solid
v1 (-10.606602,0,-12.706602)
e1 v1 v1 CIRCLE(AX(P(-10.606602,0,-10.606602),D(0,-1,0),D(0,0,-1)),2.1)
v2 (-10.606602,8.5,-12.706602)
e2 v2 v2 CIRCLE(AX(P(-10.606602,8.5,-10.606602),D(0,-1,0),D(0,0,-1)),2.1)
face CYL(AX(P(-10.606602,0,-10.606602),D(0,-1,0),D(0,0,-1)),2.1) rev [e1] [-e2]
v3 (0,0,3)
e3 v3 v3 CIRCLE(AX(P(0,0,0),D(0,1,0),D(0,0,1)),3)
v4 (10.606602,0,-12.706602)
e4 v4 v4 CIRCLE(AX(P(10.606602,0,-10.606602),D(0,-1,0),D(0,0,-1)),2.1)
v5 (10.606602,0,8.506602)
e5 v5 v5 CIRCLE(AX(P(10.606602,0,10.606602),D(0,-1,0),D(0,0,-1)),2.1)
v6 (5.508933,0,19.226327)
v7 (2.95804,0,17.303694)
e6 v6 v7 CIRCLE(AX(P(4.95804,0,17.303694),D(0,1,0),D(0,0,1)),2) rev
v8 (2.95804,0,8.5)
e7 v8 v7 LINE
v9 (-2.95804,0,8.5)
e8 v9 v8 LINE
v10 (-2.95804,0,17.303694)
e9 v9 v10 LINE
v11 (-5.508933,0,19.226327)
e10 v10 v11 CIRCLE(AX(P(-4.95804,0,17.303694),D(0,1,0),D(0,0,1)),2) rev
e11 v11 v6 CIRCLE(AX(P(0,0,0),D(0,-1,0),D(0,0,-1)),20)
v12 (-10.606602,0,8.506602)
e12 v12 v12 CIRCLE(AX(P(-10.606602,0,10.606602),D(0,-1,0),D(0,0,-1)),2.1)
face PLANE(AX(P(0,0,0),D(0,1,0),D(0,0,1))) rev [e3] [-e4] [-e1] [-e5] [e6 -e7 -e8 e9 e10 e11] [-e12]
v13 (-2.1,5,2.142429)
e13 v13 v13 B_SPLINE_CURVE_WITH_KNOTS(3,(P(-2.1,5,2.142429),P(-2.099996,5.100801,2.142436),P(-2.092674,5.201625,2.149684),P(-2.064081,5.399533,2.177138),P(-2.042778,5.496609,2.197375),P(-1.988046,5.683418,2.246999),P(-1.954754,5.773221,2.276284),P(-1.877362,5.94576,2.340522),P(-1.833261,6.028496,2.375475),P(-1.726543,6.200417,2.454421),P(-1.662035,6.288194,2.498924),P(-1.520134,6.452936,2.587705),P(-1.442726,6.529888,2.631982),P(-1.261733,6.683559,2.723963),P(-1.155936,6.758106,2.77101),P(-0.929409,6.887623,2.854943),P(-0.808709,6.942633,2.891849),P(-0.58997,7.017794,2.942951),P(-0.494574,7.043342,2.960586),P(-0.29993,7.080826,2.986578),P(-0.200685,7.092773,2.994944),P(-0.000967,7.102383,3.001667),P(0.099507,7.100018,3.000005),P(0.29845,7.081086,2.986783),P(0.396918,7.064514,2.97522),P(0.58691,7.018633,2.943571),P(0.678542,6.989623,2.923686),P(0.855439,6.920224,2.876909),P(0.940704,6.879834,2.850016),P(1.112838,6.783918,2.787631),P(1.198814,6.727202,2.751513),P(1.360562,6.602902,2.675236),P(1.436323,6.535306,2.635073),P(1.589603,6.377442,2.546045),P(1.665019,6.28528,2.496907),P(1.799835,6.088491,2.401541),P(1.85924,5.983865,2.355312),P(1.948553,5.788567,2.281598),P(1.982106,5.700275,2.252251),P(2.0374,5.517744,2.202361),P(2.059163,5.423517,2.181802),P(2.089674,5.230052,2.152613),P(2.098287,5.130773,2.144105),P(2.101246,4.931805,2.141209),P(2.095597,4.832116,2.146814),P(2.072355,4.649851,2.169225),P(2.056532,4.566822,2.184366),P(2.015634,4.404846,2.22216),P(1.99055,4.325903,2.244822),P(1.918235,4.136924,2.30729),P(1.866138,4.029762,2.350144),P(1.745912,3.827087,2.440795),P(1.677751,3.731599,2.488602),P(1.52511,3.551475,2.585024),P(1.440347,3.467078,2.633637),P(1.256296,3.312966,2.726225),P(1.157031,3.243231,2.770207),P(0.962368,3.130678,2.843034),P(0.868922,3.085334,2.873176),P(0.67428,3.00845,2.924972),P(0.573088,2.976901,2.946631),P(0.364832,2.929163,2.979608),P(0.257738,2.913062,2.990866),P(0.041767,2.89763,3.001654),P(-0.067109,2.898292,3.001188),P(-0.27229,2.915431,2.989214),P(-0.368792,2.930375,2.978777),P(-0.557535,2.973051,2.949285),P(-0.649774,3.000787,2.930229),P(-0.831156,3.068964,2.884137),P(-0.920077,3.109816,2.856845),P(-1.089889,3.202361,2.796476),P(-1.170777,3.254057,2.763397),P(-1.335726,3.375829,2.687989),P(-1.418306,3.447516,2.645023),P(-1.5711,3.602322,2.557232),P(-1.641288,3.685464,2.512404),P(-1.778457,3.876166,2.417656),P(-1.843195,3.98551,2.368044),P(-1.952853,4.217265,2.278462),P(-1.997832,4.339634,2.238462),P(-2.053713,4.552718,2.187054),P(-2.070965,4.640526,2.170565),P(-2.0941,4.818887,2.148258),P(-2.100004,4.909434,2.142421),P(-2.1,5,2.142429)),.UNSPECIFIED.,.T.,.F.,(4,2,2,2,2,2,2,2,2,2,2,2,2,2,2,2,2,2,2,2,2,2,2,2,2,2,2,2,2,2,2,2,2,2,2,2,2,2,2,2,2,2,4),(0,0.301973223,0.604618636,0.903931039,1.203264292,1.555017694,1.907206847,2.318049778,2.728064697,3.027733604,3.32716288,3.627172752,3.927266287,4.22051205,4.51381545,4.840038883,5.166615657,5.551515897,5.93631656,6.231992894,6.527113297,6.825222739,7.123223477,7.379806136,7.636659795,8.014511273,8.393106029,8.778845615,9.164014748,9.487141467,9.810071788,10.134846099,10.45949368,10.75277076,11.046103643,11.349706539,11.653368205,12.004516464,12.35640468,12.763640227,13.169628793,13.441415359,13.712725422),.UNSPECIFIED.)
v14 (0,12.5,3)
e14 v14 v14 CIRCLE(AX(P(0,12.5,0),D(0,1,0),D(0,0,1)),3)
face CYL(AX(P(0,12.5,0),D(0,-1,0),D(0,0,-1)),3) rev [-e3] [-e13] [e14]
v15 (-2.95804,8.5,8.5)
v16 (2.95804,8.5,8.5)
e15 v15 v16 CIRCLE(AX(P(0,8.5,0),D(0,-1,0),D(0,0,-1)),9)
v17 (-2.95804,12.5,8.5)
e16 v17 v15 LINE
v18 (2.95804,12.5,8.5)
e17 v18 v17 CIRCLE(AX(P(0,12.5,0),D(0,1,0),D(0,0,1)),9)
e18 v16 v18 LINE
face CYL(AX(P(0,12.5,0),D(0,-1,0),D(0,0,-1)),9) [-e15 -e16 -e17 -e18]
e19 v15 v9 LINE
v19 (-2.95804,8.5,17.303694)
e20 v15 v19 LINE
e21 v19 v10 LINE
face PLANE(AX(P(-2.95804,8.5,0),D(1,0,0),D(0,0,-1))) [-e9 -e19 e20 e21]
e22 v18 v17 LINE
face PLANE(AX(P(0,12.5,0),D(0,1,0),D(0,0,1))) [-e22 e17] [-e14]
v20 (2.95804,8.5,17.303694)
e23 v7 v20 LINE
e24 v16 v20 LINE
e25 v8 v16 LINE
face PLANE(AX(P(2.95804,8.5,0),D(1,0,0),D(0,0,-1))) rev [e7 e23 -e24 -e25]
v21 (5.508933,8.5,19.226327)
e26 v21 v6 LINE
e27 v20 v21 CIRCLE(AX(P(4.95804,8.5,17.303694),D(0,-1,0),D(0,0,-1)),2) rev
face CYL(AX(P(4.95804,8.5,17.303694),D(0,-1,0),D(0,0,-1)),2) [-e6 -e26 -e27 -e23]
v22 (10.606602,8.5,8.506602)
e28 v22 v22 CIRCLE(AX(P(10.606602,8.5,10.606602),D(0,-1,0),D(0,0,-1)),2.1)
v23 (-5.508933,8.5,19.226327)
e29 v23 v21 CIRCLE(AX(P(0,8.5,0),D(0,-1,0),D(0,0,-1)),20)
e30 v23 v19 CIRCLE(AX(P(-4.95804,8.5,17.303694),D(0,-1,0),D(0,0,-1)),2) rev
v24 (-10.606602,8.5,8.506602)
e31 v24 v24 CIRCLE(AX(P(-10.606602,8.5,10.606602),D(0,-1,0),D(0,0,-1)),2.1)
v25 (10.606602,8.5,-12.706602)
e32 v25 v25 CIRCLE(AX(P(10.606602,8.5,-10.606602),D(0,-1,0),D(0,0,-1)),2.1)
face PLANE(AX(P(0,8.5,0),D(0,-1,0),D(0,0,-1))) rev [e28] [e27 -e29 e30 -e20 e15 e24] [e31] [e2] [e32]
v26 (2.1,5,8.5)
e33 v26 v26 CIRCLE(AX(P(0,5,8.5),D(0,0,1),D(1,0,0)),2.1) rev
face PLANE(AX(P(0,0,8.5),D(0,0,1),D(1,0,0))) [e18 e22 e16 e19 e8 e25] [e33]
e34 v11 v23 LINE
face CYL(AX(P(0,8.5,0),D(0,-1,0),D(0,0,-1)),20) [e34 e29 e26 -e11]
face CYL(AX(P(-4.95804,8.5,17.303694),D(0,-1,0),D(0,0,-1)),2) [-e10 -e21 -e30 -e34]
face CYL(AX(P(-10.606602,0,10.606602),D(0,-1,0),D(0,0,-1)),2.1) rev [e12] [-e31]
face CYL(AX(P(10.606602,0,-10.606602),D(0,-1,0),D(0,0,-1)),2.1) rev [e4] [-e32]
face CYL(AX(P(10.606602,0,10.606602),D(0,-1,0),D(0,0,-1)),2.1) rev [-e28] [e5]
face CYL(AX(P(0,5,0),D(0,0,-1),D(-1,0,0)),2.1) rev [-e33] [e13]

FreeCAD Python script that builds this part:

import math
import FreeCAD as App
import Part
import Sketcher
Q = App.Units.Quantity


def edges_at(feature, points):
    """Names of the edges that pass closest to the given points."""
    edges = feature.Shape.Edges
    near = lambda p: min(range(len(edges)), key=lambda i: edges[i].distToShape(Part.Vertex(*p))[0])
    return sorted({f"Edge{near(p) + 1}" for p in points})

doc = App.newDocument("Part")
body = doc.addObject("PartDesign::Body", "Body")

# Sketch on XZ plane
sketch1 = body.newObject("Sketcher::SketchObject", "Sketch")
sketch1.AttachmentSupport = (doc.getObject("XZ_Plane"), [""])
sketch1.MapMode = "FlatFace"
sketch1.addGeometry(Part.Circle(App.Vector(0, 0, 0), App.Vector(0, 0, 1), 9), False)
sketch1.addGeometry(Part.Circle(App.Vector(0, 0, 0), App.Vector(0, 0, 1), 3), False)
sketch1.addConstraint(Sketcher.Constraint("Coincident", 0, 3, -1, 1))
sketch1.addConstraint(Sketcher.Constraint("Coincident", 1, 3, -1, 1))
sketch1.addConstraint(Sketcher.Constraint("Diameter", 0, Q("18 mm")))
sketch1.addConstraint(Sketcher.Constraint("Diameter", 1, Q("6 mm")))
pad1 = body.newObject("PartDesign::Pad", "Pad")
pad1.Profile = sketch1
pad1.Length = 12.5
pad1.Reversed = True

# Sketch on YZ plane
sketch2 = body.newObject("Sketcher::SketchObject", "Sketch001")
sketch2.AttachmentSupport = (doc.getObject("YZ_Plane"), [""])
sketch2.MapMode = "FlatFace"
sketch2.addGeometry(Part.LineSegment(App.Vector(5, 9, 0), App.Vector(5, 0, 0)), False)
sketch2.addGeometry(Part.LineSegment(App.Vector(5, 0, 0), App.Vector(7.1, 0, 0)), False)
sketch2.addGeometry(Part.LineSegment(App.Vector(7.1, 0, 0), App.Vector(7.1, 9, 0)), False)
sketch2.addGeometry(Part.LineSegment(App.Vector(7.1, 9, 0), App.Vector(5, 9, 0)), False)
sketch2.addGeometry(Part.LineSegment(App.Vector(5, 0, 0), App.Vector(5, 9, 0)), True)  # axis
sketch2.addConstraint(Sketcher.Constraint("Coincident", 0, 2, 1, 1))
sketch2.addConstraint(Sketcher.Constraint("Coincident", 1, 2, 2, 1))
sketch2.addConstraint(Sketcher.Constraint("Coincident", 2, 2, 3, 1))
sketch2.addConstraint(Sketcher.Constraint("Coincident", 3, 2, 0, 1))
sketch2.addConstraint(Sketcher.Constraint("Vertical", 0))
sketch2.addConstraint(Sketcher.Constraint("Horizontal", 1))
sketch2.addConstraint(Sketcher.Constraint("Vertical", 2))
sketch2.addConstraint(Sketcher.Constraint("Horizontal", 3))
sketch2.addConstraint(Sketcher.Constraint("Vertical", 4))
sketch2.addConstraint(Sketcher.Constraint("Coincident", 4, 1, 0, 2))
sketch2.addConstraint(Sketcher.Constraint("PointOnObject", 0, 2, -1))
sketch2.addConstraint(Sketcher.Constraint("Horizontal", 2, 2, 4, 2))
sketch2.addConstraint(Sketcher.Constraint("DistanceY", 0, 2, 0, 1, Q("9 mm")))
sketch2.addConstraint(Sketcher.Constraint("DistanceX", 1, 1, 1, 2, Q("2.1 mm")))
sketch2.addConstraint(Sketcher.Constraint("DistanceX", -1, 1, 0, 2, Q("5 mm")))
groove = body.newObject("PartDesign::Groove", "Groove")
groove.Profile = sketch2
groove.ReferenceAxis = (sketch2, ["Axis0"])
groove.Angle = 360

# Sketch on XY plane
sketch3 = body.newObject("Sketcher::SketchObject", "Sketch002")
sketch3.AttachmentSupport = (doc.getObject("XY_Plane"), [""])
sketch3.MapMode = "FlatFace"
sketch3.AttachmentOffset = App.Placement(App.Vector(0, 0, 9), App.Rotation())
sketch3.addGeometry(Part.LineSegment(App.Vector(-9, 12, 0), App.Vector(-9, 0, 0)), False)
sketch3.addGeometry(Part.LineSegment(App.Vector(-9, 0, 0), App.Vector(9, 0, 0)), False)
sketch3.addGeometry(Part.LineSegment(App.Vector(9, 0, 0), App.Vector(9, 12, 0)), False)
sketch3.addGeometry(Part.LineSegment(App.Vector(9, 12, 0), App.Vector(-9, 12, 0)), False)
sketch3.addConstraint(Sketcher.Constraint("Coincident", 0, 2, 1, 1))
sketch3.addConstraint(Sketcher.Constraint("Coincident", 1, 2, 2, 1))
sketch3.addConstraint(Sketcher.Constraint("Coincident", 2, 2, 3, 1))
sketch3.addConstraint(Sketcher.Constraint("Coincident", 3, 2, 0, 1))
sketch3.addConstraint(Sketcher.Constraint("Vertical", 0))
sketch3.addConstraint(Sketcher.Constraint("Horizontal", 1))
sketch3.addConstraint(Sketcher.Constraint("Vertical", 2))
sketch3.addConstraint(Sketcher.Constraint("Horizontal", 3))
sketch3.addConstraint(Sketcher.Constraint("Symmetric", 0, 2, 1, 2, -1, 1))
sketch3.addConstraint(Sketcher.Constraint("DistanceX", 1, 1, 1, 2, Q("18 mm")))
sketch3.addConstraint(Sketcher.Constraint("DistanceY", 0, 2, 0, 1, Q("12.5 mm")))
pocket1 = body.newObject("PartDesign::Pocket", "Pocket")
pocket1.Profile = sketch3
pocket1.Length = 0.5

# Sketch on XZ plane
sketch4 = body.newObject("Sketcher::SketchObject", "Sketch003")
sketch4.AttachmentSupport = (doc.getObject("XZ_Plane"), [""])
sketch4.MapMode = "FlatFace"
sketch4.addGeometry(Part.LineSegment(App.Vector(-3, 8, 0), App.Vector(-3, 20, 0)), False)
sketch4.addGeometry(Part.ArcOfCircle(Part.Circle(App.Vector(0, 0, 0), App.Vector(0, 0, 1), 20), math.radians(99), math.radians(441)), False)
sketch4.addGeometry(Part.LineSegment(App.Vector(3, 20, 0), App.Vector(3, 8, 0)), False)
sketch4.addGeometry(Part.ArcOfCircle(Part.Circle(App.Vector(0, 0, 0), App.Vector(0, 0, 1), 9), math.radians(109), math.radians(431)), False)
sketch4.addConstraint(Sketcher.Constraint("Coincident", 0, 2, 1, 1))
sketch4.addConstraint(Sketcher.Constraint("Coincident", 1, 2, 2, 1))
sketch4.addConstraint(Sketcher.Constraint("Coincident", 2, 2, 3, 2))
sketch4.addConstraint(Sketcher.Constraint("Coincident", 3, 1, 0, 1))
sketch4.addConstraint(Sketcher.Constraint("Vertical", 0))
sketch4.addConstraint(Sketcher.Constraint("Vertical", 2))
sketch4.addConstraint(Sketcher.Constraint("Coincident", 1, 3, -1, 1))
sketch4.addConstraint(Sketcher.Constraint("Coincident", 3, 3, -1, 1))
sketch4.addConstraint(Sketcher.Constraint("Horizontal", 0, 2, 1, 2))
sketch4.addConstraint(Sketcher.Constraint("Radius", 1, Q("20 mm")))
sketch4.addConstraint(Sketcher.Constraint("Radius", 3, Q("9 mm")))
sketch4.addConstraint(Sketcher.Constraint("DistanceY", -1, 1, 2, 2, Q("8.5 mm")))
pad2 = body.newObject("PartDesign::Pad", "Pad001")
pad2.Profile = sketch4
pad2.Length = 8.5
pad2.Reversed = True
doc.recompute()

fillet = body.newObject("PartDesign::Fillet", "Fillet")
fillet.Base = (pad2, edges_at(pad2, [(-2.958, 4.25, 19.78), (2.958, 4.25, 19.78)]))
fillet.Radius = 2

# Sketch on XZ plane
sketch5 = body.newObject("Sketcher::SketchObject", "Sketch004")
sketch5.AttachmentSupport = (doc.getObject("XZ_Plane"), [""])
sketch5.MapMode = "FlatFace"
sketch5.addGeometry(Part.Circle(App.Vector(-10.6, 10.6, 0), App.Vector(0, 0, 1), 2.1), False)
sketch5.addGeometry(Part.Circle(App.Vector(10.6, 10.6, 0), App.Vector(0, 0, 1), 2.1), False)
sketch5.addGeometry(Part.Circle(App.Vector(10.6, -10.6, 0), App.Vector(0, 0, 1), 2.1), False)
sketch5.addGeometry(Part.Circle(App.Vector(-10.6, -10.6, 0), App.Vector(0, 0, 1), 2.1), False)
sketch5.addConstraint(Sketcher.Constraint("Equal", 0, 1))
sketch5.addConstraint(Sketcher.Constraint("Equal", 1, 2))
sketch5.addConstraint(Sketcher.Constraint("Equal", 2, 3))
sketch5.addConstraint(Sketcher.Constraint("Symmetric", 0, 3, 2, 3, -1, 1))
sketch5.addConstraint(Sketcher.Constraint("Symmetric", 1, 3, 3, 3, -1, 1))
sketch5.addConstraint(Sketcher.Constraint("Symmetric", 0, 3, 1, 3, -2))
sketch5.addConstraint(Sketcher.Constraint("Diameter", 0, Q("4.2 mm")))
sketch5.addConstraint(Sketcher.Constraint("DistanceX", 0, 3, -1, 1, Q("10.606602 mm")))
sketch5.addConstraint(Sketcher.Constraint("DistanceY", -1, 1, 0, 3, Q("10.606602 mm")))
doc.recompute()
hole = body.newObject("PartDesign::Hole", "Hole")
hole.Profile = sketch5
hole.ThreadType = "None"
hole.Diameter = 4.2
hole.DepthType = "ThroughAll"

doc.recompute()
